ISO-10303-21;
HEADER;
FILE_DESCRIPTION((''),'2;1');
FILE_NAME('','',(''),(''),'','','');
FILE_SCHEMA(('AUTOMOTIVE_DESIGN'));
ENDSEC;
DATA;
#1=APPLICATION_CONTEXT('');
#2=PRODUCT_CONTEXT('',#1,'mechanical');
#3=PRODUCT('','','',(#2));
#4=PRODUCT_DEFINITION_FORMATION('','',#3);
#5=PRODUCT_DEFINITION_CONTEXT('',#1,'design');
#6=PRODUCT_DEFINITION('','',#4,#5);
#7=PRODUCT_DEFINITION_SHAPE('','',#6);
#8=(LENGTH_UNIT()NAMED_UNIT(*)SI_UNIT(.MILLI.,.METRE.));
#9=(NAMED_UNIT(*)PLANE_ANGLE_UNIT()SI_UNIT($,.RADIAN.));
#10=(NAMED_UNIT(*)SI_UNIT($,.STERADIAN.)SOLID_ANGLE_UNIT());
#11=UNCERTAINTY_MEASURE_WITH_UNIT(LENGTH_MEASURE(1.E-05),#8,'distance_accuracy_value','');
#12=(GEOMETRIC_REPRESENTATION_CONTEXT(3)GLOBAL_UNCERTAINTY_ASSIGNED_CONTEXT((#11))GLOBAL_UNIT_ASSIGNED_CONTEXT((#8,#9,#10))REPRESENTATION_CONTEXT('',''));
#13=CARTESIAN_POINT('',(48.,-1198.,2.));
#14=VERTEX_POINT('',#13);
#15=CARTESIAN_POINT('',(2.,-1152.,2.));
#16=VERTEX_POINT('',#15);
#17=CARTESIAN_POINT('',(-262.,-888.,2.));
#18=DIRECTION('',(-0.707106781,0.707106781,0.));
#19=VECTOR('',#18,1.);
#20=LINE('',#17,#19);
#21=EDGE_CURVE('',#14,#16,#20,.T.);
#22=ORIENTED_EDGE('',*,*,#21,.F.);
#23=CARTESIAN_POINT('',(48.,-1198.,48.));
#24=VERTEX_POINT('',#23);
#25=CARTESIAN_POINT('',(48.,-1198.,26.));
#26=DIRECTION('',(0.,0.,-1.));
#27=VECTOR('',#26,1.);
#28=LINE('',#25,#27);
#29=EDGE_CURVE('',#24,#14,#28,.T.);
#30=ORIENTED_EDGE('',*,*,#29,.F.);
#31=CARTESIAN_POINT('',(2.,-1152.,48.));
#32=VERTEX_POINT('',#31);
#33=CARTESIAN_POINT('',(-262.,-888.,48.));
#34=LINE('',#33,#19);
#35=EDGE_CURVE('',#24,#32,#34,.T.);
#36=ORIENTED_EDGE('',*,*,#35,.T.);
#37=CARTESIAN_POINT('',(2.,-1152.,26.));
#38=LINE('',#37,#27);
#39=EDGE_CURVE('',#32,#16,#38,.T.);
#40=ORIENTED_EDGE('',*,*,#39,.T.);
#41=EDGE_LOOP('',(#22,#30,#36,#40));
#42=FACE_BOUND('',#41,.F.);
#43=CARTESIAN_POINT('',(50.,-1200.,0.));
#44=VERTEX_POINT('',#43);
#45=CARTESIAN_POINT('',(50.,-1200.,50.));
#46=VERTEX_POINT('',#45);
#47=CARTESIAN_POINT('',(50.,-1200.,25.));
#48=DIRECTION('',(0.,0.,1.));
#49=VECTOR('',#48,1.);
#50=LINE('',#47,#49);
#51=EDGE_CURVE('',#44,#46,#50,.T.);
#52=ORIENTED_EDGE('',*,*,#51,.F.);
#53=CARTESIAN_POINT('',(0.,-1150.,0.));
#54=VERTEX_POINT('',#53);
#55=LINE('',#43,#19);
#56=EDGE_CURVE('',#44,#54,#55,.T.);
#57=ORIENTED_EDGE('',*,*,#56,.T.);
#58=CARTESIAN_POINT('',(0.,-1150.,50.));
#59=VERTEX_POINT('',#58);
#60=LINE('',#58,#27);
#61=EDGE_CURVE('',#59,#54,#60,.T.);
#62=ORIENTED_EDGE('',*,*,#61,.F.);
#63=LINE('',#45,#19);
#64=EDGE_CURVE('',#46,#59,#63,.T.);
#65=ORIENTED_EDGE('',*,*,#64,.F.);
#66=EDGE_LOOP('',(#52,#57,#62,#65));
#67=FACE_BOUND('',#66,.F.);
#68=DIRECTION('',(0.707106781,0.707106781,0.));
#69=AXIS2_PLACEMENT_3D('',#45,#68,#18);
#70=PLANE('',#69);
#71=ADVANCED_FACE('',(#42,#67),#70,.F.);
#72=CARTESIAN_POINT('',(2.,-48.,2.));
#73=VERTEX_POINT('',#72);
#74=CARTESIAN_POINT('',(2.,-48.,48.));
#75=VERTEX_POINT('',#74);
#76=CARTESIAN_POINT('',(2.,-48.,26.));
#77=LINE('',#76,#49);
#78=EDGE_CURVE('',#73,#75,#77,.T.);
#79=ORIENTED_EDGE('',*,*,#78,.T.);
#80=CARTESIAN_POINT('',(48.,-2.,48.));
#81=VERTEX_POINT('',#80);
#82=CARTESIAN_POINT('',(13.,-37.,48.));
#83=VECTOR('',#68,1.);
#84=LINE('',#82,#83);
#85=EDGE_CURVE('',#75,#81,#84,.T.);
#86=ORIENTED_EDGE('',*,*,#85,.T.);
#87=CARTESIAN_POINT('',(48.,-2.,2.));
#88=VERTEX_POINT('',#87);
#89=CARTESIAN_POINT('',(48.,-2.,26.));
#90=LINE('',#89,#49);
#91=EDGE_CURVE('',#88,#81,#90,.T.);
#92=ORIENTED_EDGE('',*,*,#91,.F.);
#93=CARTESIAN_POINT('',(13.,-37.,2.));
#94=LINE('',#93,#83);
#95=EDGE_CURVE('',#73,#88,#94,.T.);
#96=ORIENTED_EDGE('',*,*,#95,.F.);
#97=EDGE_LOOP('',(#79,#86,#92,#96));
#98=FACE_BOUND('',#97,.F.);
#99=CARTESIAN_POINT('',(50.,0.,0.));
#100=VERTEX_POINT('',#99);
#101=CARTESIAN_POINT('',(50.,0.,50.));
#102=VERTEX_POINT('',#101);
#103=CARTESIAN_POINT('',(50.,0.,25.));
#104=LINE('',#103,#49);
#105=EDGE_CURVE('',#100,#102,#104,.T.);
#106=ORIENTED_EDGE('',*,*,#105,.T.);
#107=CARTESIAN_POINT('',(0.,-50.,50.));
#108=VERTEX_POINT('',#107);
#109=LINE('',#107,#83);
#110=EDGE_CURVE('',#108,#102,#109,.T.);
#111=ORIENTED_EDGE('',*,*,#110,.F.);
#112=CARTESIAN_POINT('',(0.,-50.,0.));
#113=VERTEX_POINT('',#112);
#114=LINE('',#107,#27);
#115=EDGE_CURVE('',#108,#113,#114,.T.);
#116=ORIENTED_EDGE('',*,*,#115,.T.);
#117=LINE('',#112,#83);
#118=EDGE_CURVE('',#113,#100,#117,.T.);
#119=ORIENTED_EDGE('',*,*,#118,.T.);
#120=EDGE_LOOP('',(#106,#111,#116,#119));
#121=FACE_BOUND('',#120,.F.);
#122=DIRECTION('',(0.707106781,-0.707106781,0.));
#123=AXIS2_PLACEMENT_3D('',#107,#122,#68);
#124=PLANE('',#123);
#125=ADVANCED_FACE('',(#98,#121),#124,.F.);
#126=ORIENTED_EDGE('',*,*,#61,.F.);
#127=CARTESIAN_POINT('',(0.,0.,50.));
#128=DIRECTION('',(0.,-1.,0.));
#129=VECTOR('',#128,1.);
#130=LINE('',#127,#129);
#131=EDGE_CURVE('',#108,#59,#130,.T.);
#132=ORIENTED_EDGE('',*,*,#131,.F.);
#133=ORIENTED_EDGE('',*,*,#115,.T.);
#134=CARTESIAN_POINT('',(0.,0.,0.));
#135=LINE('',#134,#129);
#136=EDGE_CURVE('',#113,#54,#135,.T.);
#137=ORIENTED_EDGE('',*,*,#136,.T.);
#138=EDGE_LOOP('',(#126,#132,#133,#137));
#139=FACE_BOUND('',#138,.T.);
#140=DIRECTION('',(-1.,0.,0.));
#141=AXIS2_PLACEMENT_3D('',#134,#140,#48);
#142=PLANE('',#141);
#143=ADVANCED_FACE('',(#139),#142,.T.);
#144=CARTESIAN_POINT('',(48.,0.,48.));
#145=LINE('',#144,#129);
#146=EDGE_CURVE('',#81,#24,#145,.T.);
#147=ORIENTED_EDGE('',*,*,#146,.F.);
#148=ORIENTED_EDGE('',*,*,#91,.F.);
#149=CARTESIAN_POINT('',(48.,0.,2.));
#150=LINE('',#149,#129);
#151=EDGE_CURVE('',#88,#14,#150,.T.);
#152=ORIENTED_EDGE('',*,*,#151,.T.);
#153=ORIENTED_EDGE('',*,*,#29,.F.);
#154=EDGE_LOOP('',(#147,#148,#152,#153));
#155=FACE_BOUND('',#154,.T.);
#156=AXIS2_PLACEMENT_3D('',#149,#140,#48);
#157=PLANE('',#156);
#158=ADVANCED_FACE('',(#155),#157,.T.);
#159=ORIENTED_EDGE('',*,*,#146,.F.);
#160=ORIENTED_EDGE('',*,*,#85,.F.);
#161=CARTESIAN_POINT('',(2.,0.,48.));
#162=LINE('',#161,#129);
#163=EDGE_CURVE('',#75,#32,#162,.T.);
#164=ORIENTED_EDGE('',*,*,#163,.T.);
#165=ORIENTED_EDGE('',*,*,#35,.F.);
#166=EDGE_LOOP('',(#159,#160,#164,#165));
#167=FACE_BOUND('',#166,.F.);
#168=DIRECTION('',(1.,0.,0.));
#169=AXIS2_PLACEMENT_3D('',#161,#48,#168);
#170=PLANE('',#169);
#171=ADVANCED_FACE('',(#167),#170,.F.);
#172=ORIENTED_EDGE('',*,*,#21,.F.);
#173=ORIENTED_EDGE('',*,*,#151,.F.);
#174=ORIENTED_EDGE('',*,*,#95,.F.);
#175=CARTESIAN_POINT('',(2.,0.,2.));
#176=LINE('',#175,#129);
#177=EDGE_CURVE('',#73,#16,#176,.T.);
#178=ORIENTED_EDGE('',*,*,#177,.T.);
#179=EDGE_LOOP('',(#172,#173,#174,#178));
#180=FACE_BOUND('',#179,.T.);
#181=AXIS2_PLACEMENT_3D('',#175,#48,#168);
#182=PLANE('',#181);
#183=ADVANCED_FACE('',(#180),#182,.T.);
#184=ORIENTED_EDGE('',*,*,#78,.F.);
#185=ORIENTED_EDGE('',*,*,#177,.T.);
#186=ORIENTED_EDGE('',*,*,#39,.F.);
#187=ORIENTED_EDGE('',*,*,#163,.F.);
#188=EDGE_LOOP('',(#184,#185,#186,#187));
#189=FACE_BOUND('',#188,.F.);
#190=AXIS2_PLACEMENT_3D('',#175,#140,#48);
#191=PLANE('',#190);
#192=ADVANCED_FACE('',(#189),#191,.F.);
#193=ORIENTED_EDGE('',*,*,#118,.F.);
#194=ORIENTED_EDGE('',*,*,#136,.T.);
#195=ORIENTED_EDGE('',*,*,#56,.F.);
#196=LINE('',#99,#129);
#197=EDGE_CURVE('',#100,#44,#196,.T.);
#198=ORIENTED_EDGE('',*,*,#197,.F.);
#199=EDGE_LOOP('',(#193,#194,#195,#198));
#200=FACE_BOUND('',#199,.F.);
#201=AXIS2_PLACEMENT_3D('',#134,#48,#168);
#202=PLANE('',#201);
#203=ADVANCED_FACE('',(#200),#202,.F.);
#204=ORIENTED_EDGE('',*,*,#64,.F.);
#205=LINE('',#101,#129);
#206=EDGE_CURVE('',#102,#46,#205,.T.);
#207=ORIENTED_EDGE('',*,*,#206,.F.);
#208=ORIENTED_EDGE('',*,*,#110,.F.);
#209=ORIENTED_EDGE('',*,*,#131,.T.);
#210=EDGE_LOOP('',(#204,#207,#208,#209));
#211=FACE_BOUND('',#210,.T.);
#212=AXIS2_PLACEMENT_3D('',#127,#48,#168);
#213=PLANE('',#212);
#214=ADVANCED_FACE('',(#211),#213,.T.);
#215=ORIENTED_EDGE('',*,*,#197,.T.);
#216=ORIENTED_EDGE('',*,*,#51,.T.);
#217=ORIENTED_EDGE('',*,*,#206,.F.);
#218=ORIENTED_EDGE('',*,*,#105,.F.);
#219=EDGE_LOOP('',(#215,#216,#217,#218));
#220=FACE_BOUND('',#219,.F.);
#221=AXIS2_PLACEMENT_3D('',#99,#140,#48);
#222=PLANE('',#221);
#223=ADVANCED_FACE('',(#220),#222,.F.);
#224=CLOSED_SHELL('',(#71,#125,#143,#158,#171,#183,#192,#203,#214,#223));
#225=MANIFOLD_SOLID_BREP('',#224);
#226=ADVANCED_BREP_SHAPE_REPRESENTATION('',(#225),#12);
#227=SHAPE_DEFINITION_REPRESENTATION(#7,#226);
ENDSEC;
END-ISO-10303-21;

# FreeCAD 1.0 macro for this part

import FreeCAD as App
import Part
import Sketcher
from FreeCAD import Vector

doc = App.newDocument("Part")
body = doc.addObject("PartDesign::Body", "Body")

# Sketch on XZ plane
sketch1 = body.newObject("Sketcher::SketchObject", "Sketch")
sketch1.AttachmentSupport = (doc.getObject("XZ_Plane"), [""])
sketch1.MapMode = "FlatFace"
sketch1.addGeometry(Part.LineSegment(Vector(0, 50, 0), Vector(0, 0, 0)), False)
sketch1.addGeometry(Part.LineSegment(Vector(0, 0, 0), Vector(50, 0, 0)), False)
sketch1.addGeometry(Part.LineSegment(Vector(50, 0, 0), Vector(50, 50, 0)), False)
sketch1.addGeometry(Part.LineSegment(Vector(50, 50, 0), Vector(0, 50, 0)), False)
sketch1.addGeometry(Part.LineSegment(Vector(48, 2, 0), Vector(2, 2, 0)), False)
sketch1.addGeometry(Part.LineSegment(Vector(2, 2, 0), Vector(2, 48, 0)), False)
sketch1.addGeometry(Part.LineSegment(Vector(2, 48, 0), Vector(48, 48, 0)), False)
sketch1.addGeometry(Part.LineSegment(Vector(48, 48, 0), Vector(48, 2, 0)), False)
sketch1.addConstraint(Sketcher.Constraint("Coincident", 0, 2, 1, 1))
sketch1.addConstraint(Sketcher.Constraint("Coincident", 1, 2, 2, 1))
sketch1.addConstraint(Sketcher.Constraint("Coincident", 2, 2, 3, 1))
sketch1.addConstraint(Sketcher.Constraint("Coincident", 3, 2, 0, 1))
sketch1.addConstraint(Sketcher.Constraint("Coincident", 4, 2, 5, 1))
sketch1.addConstraint(Sketcher.Constraint("Coincident", 5, 2, 6, 1))
sketch1.addConstraint(Sketcher.Constraint("Coincident", 6, 2, 7, 1))
sketch1.addConstraint(Sketcher.Constraint("Coincident", 7, 2, 4, 1))
sketch1.addConstraint(Sketcher.Constraint("Vertical", 0))
sketch1.addConstraint(Sketcher.Constraint("Horizontal", 1))
sketch1.addConstraint(Sketcher.Constraint("Vertical", 2))
sketch1.addConstraint(Sketcher.Constraint("Horizontal", 3))
sketch1.addConstraint(Sketcher.Constraint("Horizontal", 4))
sketch1.addConstraint(Sketcher.Constraint("Vertical", 5))
sketch1.addConstraint(Sketcher.Constraint("Horizontal", 6))
sketch1.addConstraint(Sketcher.Constraint("Vertical", 7))
sketch1.addConstraint(Sketcher.Constraint("Coincident", 0, 2, -1, 1))
sketch1.addConstraint(Sketcher.Constraint("Equal", 3, 0))
sketch1.addConstraint(Sketcher.Constraint("Equal", 6, 5))
sketch1.addConstraint(Sketcher.Constraint("DistanceX", 1, 1, 1, 2, 50.0))
sketch1.addConstraint(Sketcher.Constraint("DistanceX", 4, 2, 4, 1, 46.0))
sketch1.addConstraint(Sketcher.Constraint("DistanceX", -1, 1, 4, 2, 2.0))
sketch1.addConstraint(Sketcher.Constraint("DistanceY", -1, 1, 4, 2, 2.0))
pad1 = body.newObject("PartDesign::Pad", "Pad")
pad1.Profile = sketch1
pad1.Length = 1200

# Sketch on XY plane
sketch2 = body.newObject("Sketcher::SketchObject", "Sketch001")
sketch2.AttachmentSupport = (doc.getObject("XY_Plane"), [""])
sketch2.MapMode = "FlatFace"
sketch2.AttachmentOffset = App.Placement(Vector(0, 0, 50), App.Rotation())
sketch2.addGeometry(Part.LineSegment(Vector(50, 0, 0), Vector(0, 0, 0)), False)
sketch2.addGeometry(Part.LineSegment(Vector(0, 0, 0), Vector(0, -50, 0)), False)
sketch2.addGeometry(Part.LineSegment(Vector(0, -50, 0), Vector(50, 0, 0)), False)
sketch2.addConstraint(Sketcher.Constraint("Coincident", 0, 2, 1, 1))
sketch2.addConstraint(Sketcher.Constraint("Coincident", 1, 2, 2, 1))
sketch2.addConstraint(Sketcher.Constraint("Coincident", 2, 2, 0, 1))
sketch2.addConstraint(Sketcher.Constraint("Horizontal", 0))
sketch2.addConstraint(Sketcher.Constraint("Vertical", 1))
sketch2.addConstraint(Sketcher.Constraint("Coincident", 0, 2, -1, 1))
sketch2.addConstraint(Sketcher.Constraint("Equal", 0, 1))
sketch2.addConstraint(Sketcher.Constraint("DistanceX", 0, 2, 0, 1, 50.0))
pocket1 = body.newObject("PartDesign::Pocket", "Pocket")
pocket1.Profile = sketch2
pocket1.Length = 50

# Sketch on XY plane
sketch3 = body.newObject("Sketcher::SketchObject", "Sketch002")
sketch3.AttachmentSupport = (doc.getObject("XY_Plane"), [""])
sketch3.MapMode = "FlatFace"
sketch3.AttachmentOffset = App.Placement(Vector(0, 0, 50), App.Rotation())
sketch3.addGeometry(Part.LineSegment(Vector(50, 0, 0), Vector(0, 0, 0)), False)
sketch3.addGeometry(Part.LineSegment(Vector(0, 0, 0), Vector(0, -50, 0)), False)
sketch3.addGeometry(Part.LineSegment(Vector(0, -50, 0), Vector(50, 0, 0)), False)
sketch3.addGeometry(Part.LineSegment(Vector(0, -1150, 0), Vector(0, -1200, 0)), False)
sketch3.addGeometry(Part.LineSegment(Vector(0, -1200, 0), Vector(50, -1200, 0)), False)
sketch3.addGeometry(Part.LineSegment(Vector(50, -1200, 0), Vector(0, -1150, 0)), False)
sketch3.addConstraint(Sketcher.Constraint("Coincident", 0, 2, 1, 1))
sketch3.addConstraint(Sketcher.Constraint("Coincident", 1, 2, 2, 1))
sketch3.addConstraint(Sketcher.Constraint("Coincident", 2, 2, 0, 1))
sketch3.addConstraint(Sketcher.Constraint("Coincident", 3, 2, 4, 1))
sketch3.addConstraint(Sketcher.Constraint("Coincident", 4, 2, 5, 1))
sketch3.addConstraint(Sketcher.Constraint("Coincident", 5, 2, 3, 1))
sketch3.addConstraint(Sketcher.Constraint("Horizontal", 0))
sketch3.addConstraint(Sketcher.Constraint("Vertical", 1))
sketch3.addConstraint(Sketcher.Constraint("Vertical", 3))
sketch3.addConstraint(Sketcher.Constraint("Horizontal", 4))
sketch3.addConstraint(Sketcher.Constraint("Coincident", 0, 2, -1, 1))
sketch3.addConstraint(Sketcher.Constraint("PointOnObject", 3, 2, -2))
sketch3.addConstraint(Sketcher.Constraint("Perpendicular", 2, 5))
sketch3.addConstraint(Sketcher.Constraint("Vertical", 2, 2, 4, 2))
sketch3.addConstraint(Sketcher.Constraint("Equal", 4, 1))
sketch3.addConstraint(Sketcher.Constraint("DistanceX", 0, 2, 0, 1, 50.0))
sketch3.addConstraint(Sketcher.Constraint("DistanceY", 3, 2, -1, 1, 1200.0))
pocket2 = body.newObject("PartDesign::Pocket", "Pocket001")
pocket2.Profile = sketch3
pocket2.Length = 50

doc.recompute()
